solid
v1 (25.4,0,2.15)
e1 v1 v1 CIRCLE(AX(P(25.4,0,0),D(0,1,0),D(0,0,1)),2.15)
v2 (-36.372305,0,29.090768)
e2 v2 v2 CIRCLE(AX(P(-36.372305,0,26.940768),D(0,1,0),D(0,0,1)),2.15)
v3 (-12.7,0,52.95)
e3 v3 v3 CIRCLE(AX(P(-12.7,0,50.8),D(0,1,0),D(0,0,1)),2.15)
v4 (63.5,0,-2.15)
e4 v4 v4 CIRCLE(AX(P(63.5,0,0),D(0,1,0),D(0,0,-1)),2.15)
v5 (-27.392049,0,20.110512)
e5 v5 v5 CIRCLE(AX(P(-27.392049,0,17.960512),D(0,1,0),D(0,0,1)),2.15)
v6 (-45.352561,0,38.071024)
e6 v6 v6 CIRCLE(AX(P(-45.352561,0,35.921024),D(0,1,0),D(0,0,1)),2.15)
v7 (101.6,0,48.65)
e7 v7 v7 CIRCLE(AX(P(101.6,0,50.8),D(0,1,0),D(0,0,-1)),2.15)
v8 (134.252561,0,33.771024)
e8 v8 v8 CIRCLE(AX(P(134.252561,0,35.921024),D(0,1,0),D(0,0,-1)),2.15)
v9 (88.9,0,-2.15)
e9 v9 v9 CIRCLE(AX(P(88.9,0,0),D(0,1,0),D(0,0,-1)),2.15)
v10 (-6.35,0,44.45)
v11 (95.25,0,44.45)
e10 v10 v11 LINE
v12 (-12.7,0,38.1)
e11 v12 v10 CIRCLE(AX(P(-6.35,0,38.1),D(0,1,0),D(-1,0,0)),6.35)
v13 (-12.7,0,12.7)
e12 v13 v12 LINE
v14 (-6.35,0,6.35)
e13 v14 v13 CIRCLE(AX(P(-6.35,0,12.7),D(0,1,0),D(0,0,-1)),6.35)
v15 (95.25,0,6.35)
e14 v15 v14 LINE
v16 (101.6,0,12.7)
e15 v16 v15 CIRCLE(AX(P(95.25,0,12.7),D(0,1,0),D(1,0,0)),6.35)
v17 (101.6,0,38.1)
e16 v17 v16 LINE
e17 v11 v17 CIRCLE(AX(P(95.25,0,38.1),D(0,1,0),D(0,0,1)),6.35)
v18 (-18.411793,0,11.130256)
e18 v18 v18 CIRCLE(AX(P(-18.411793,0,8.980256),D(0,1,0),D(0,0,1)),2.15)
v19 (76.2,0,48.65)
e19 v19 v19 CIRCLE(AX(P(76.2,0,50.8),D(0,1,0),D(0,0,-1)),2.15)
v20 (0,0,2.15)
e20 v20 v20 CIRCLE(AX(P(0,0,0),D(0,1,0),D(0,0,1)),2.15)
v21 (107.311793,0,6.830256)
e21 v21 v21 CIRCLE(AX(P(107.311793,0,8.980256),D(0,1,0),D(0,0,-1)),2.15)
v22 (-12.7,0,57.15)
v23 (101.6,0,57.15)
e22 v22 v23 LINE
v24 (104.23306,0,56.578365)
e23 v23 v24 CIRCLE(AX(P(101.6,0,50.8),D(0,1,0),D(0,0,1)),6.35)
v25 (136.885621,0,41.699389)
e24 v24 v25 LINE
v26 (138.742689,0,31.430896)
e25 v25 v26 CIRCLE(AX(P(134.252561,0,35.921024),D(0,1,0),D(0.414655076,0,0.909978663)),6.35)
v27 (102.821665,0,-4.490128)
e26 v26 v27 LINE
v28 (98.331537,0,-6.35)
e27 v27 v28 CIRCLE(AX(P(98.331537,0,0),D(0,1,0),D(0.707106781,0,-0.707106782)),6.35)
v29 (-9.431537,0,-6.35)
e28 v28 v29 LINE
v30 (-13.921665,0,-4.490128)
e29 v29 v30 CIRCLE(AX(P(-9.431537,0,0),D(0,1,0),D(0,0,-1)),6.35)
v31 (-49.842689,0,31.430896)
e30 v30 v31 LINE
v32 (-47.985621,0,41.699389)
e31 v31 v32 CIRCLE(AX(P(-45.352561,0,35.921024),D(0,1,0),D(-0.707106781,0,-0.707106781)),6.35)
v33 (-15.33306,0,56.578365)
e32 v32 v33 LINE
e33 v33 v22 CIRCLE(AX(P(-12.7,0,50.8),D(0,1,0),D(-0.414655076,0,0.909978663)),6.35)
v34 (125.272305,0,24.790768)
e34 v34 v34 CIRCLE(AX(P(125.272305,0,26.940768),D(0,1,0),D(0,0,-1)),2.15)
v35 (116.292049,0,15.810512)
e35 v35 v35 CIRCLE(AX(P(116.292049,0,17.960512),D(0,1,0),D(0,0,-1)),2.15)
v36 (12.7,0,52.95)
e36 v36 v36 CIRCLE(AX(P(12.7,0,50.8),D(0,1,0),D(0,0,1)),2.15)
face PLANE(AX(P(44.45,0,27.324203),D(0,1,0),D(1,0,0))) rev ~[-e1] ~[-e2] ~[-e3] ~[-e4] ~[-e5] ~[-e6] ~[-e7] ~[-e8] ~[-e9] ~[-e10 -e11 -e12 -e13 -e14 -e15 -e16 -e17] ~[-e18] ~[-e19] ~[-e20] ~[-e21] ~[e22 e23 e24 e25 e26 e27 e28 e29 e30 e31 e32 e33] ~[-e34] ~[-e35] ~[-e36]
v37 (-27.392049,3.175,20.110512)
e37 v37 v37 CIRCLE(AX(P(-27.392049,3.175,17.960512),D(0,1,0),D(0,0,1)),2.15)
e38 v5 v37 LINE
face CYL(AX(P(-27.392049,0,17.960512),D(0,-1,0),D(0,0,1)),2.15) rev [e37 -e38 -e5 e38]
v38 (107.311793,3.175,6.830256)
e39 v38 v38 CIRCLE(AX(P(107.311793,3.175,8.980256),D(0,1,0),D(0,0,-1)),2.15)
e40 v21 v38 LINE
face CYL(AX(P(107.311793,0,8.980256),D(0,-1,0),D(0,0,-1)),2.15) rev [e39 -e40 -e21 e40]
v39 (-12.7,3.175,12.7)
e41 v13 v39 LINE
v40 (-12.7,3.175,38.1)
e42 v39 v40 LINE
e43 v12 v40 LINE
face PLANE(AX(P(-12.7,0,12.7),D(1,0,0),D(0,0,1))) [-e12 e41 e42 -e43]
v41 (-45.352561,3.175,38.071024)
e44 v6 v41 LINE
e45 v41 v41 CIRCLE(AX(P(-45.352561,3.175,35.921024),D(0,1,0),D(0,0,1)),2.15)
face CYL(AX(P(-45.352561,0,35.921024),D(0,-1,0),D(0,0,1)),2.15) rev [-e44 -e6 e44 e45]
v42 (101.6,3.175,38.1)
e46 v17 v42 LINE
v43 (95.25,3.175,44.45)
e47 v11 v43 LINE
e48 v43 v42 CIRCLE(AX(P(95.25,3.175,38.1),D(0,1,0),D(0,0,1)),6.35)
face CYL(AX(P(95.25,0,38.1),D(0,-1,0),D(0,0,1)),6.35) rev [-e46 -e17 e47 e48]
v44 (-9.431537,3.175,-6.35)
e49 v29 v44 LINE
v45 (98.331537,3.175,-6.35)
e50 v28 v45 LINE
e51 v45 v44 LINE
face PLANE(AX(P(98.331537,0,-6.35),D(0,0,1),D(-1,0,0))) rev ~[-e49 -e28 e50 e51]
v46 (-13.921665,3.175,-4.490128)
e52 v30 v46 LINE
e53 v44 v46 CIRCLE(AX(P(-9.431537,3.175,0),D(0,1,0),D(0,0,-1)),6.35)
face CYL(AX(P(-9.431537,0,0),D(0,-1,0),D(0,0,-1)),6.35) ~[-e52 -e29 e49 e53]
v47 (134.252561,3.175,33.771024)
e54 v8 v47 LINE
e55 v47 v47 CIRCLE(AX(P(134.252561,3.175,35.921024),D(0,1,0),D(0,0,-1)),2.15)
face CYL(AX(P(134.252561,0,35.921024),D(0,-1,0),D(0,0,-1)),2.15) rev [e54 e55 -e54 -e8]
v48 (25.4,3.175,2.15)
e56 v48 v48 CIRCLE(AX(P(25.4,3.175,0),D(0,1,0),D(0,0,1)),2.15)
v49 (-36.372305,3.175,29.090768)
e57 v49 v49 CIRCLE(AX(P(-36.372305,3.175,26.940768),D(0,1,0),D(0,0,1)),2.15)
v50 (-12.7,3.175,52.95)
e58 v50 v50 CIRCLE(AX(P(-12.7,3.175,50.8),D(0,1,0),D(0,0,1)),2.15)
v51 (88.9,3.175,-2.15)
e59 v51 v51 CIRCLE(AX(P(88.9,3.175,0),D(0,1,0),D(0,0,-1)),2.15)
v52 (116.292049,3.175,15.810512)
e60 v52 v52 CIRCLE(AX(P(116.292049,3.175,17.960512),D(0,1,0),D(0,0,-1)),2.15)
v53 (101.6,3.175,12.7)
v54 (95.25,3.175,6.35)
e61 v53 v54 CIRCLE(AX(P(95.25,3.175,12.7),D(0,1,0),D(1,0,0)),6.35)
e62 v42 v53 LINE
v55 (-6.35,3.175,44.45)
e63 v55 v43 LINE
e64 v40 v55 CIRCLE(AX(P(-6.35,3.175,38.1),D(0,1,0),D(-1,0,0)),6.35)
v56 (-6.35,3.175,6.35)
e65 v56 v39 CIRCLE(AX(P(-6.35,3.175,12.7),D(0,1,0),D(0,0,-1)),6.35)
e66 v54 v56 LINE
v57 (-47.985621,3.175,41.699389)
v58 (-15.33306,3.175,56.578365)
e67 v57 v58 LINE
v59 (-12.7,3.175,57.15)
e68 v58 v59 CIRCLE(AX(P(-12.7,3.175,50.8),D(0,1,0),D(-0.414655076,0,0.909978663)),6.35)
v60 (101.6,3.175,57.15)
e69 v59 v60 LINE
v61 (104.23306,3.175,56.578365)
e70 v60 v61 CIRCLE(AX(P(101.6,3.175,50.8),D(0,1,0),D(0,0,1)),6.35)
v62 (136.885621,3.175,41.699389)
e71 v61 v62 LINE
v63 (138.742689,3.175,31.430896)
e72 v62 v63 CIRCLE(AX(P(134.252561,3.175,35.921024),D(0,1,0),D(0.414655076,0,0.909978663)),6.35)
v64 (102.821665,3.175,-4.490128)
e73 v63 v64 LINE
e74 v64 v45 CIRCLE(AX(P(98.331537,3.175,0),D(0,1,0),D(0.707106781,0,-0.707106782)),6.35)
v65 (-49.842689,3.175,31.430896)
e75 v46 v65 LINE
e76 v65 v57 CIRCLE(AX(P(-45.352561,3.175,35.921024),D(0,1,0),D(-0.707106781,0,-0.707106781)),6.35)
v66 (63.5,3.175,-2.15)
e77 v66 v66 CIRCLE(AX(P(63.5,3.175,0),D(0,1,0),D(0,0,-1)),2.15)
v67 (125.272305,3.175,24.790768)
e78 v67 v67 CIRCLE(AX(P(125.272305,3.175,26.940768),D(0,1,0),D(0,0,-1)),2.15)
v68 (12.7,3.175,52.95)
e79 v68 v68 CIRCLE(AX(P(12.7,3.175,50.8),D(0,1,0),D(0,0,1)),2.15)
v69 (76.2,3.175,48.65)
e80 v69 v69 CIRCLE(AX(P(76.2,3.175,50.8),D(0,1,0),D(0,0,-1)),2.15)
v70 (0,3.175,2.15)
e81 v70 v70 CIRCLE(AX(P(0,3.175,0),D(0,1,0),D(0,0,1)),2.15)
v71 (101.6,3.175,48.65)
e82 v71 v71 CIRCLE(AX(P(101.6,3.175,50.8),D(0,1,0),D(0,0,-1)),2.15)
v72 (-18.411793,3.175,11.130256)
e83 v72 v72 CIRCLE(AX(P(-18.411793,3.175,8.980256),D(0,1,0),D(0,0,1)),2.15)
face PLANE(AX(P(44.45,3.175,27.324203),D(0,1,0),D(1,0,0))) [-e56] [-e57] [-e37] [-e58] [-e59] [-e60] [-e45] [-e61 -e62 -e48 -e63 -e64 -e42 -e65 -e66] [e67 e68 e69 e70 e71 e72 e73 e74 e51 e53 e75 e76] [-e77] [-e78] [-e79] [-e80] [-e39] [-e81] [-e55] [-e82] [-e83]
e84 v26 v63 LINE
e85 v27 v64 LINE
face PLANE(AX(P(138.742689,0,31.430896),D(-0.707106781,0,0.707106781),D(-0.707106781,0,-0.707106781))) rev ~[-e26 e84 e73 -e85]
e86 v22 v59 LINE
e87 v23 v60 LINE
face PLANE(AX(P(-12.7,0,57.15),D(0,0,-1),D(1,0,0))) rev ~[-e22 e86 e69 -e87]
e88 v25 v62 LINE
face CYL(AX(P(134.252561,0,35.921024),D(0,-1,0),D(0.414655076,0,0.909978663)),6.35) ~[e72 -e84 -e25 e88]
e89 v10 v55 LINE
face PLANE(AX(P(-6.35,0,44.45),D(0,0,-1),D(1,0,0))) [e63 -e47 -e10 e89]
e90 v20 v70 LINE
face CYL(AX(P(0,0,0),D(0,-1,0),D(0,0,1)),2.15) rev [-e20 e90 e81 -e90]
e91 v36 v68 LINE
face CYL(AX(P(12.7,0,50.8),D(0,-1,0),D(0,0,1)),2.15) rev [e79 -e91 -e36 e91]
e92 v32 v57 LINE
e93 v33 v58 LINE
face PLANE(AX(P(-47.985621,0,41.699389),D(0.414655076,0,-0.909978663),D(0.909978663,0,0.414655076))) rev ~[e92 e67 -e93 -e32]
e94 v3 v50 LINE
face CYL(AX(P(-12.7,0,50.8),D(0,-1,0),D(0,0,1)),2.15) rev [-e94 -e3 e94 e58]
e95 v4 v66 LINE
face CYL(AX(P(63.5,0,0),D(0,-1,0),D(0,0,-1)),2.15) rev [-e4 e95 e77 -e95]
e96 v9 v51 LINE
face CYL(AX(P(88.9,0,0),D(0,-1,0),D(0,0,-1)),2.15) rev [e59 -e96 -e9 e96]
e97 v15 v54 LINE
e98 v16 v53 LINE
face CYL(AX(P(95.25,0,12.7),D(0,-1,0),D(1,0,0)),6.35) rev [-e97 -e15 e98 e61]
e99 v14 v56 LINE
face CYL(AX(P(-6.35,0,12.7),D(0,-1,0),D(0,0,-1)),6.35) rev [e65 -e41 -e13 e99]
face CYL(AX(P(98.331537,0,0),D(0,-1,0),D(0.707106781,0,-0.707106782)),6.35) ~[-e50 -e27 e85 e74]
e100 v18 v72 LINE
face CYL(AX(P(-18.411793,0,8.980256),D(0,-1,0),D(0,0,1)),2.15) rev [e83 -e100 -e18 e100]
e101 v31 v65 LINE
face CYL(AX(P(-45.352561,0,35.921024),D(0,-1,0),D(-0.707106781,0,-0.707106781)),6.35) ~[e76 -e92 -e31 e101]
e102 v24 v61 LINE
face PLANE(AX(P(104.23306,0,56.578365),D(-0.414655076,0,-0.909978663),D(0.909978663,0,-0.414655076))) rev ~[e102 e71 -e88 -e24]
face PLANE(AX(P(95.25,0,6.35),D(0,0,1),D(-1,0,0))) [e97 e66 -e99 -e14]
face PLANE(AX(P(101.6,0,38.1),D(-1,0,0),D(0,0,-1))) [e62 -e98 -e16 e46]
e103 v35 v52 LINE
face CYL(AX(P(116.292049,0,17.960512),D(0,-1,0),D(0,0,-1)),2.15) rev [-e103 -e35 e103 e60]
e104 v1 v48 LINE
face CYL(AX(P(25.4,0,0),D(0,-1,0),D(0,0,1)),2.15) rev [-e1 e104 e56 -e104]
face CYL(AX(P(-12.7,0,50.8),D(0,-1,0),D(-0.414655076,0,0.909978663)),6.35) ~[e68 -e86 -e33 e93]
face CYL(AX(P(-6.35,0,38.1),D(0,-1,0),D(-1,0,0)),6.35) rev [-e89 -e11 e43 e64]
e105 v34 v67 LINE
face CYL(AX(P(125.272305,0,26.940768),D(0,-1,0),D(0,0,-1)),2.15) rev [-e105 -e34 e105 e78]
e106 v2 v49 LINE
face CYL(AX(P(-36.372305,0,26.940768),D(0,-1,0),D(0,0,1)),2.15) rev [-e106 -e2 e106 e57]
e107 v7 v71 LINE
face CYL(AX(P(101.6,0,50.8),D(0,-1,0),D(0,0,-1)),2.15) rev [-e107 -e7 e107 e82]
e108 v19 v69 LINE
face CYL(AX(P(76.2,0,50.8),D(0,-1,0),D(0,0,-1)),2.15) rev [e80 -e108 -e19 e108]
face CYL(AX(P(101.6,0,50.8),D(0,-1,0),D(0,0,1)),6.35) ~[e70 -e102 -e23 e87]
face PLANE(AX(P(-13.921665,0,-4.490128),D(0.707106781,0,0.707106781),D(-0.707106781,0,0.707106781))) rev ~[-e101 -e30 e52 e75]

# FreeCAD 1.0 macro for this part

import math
import FreeCAD as App
import Part
import Sketcher
from FreeCAD import Vector
Q = App.Units.Quantity

doc = App.newDocument("Part")
params = doc.addObject("Spreadsheet::Sheet", "Params")
for row, (alias, value) in enumerate([
    ("sketch1_width", "4 in"),
    ("sketch1_height", "1 in"),
    ("sketch1_radius", "0.25 in"),
    ("sketch1_length", "2 in"),
    ("pad1_length", "0.125 in"),
], start=1):
    params.set(f"A{row}", alias)
    params.set(f"B{row}", "=" + value)
    params.setAlias(f"B{row}", alias)

body = doc.addObject("PartDesign::Body", "Body")

# Sketch on XZ plane
sketch1 = doc.addObject("Sketcher::SketchObject", "Sketch")
body.addObject(sketch1)
sketch1.AttachmentSupport = (doc.XZ_Plane, [""])
sketch1.MapMode = "FlatFace"
sketch1.addGeometry([
    Part.LineSegment(Vector(98.331537, -6.35, 0), Vector(-9.431537, -6.35, 0)),  # 0
    Part.ArcOfCircle(Part.Circle(Vector(-9.431537, 0, 0), Vector(0, 0, 1), 6.35), math.radians(-135), math.radians(-90)),  # 1
    Part.LineSegment(Vector(-13.921665, -4.490128, 0), Vector(-49.842689, 31.430896, 0)),  # 2
    Part.ArcOfCircle(Part.Circle(Vector(-45.352561, 35.921024, 0), Vector(0, 0, 1), 6.35), math.radians(114.497597), math.radians(225)),  # 3
    Part.LineSegment(Vector(-47.985621, 41.699389, 0), Vector(-15.33306, 56.578365, 0)),  # 4
    Part.ArcOfCircle(Part.Circle(Vector(-12.7, 50.8, 0), Vector(0, 0, 1), 6.35), math.radians(90), math.radians(114.497597)),  # 5
    Part.LineSegment(Vector(-12.7, 57.15, 0), Vector(101.6, 57.15, 0)),  # 6
    Part.ArcOfCircle(Part.Circle(Vector(101.6, 50.8, 0), Vector(0, 0, 1), 6.35), math.radians(65.502403), math.radians(90)),  # 7
    Part.LineSegment(Vector(104.23306, 56.578365, 0), Vector(136.885621, 41.699389, 0)),  # 8
    Part.ArcOfCircle(Part.Circle(Vector(134.252561, 35.921024, 0), Vector(0, 0, 1), 6.35), math.radians(-45), math.radians(65.502403)),  # 9
    Part.LineSegment(Vector(138.742689, 31.430896, 0), Vector(102.821665, -4.490128, 0)),  # 10
    Part.ArcOfCircle(Part.Circle(Vector(98.331537, 0, 0), Vector(0, 0, 1), 6.35), math.radians(-90), math.radians(-45)),  # 11
    Part.Circle(Vector(-12.7, 50.8, 0), Vector(0, 0, 1), 2.15),  # 12
    Part.Circle(Vector(12.7, 50.8, 0), Vector(0, 0, 1), 2.15),  # 13
    Part.Circle(Vector(-45.352561, 35.921024, 0), Vector(0, 0, 1), 2.15),  # 14
    Part.Circle(Vector(-36.372305, 26.940768, 0), Vector(0, 0, 1), 2.15),  # 15
    Part.Circle(Vector(76.2, 50.8, 0), Vector(0, 0, 1), 2.15),  # 16
    Part.Circle(Vector(101.6, 50.8, 0), Vector(0, 0, 1), 2.15),  # 17
    Part.Circle(Vector(134.252561, 35.921024, 0), Vector(0, 0, 1), 2.15),  # 18
    Part.Circle(Vector(125.272305, 26.940768, 0), Vector(0, 0, 1), 2.15),  # 19
    Part.Circle(Vector(-27.392049, 17.960512, 0), Vector(0, 0, 1), 2.15),  # 20
    Part.LineSegment(Vector(-6.35, 6.35, 0), Vector(95.25, 6.35, 0)),  # 21
    Part.ArcOfCircle(Part.Circle(Vector(95.25, 12.7, 0), Vector(0, 0, 1), 6.35), math.radians(-90), math.radians(0)),  # 22
    Part.LineSegment(Vector(101.6, 12.7, 0), Vector(101.6, 38.1, 0)),  # 23
    Part.ArcOfCircle(Part.Circle(Vector(95.25, 38.1, 0), Vector(0, 0, 1), 6.35), math.radians(0), math.radians(90)),  # 24
    Part.LineSegment(Vector(95.25, 44.45, 0), Vector(-6.35, 44.45, 0)),  # 25
    Part.ArcOfCircle(Part.Circle(Vector(-6.35, 38.1, 0), Vector(0, 0, 1), 6.35), math.radians(90), math.radians(180)),  # 26
    Part.LineSegment(Vector(-12.7, 38.1, 0), Vector(-12.7, 12.7, 0)),  # 27
    Part.ArcOfCircle(Part.Circle(Vector(-6.35, 12.7, 0), Vector(0, 0, 1), 6.35), math.radians(180), math.radians(270)),  # 28
    Part.Circle(Vector(-18.411793, 8.980256, 0), Vector(0, 0, 1), 2.15),  # 29
    Part.Circle(Vector(0, 0, 0), Vector(0, 0, 1), 2.15),  # 30
    Part.Circle(Vector(25.4, 0, 0), Vector(0, 0, 1), 2.15),  # 31
    Part.Circle(Vector(116.292049, 17.960512, 0), Vector(0, 0, 1), 2.15),  # 32
    Part.Circle(Vector(63.5, 0, 0), Vector(0, 0, 1), 2.15),  # 33
    Part.Circle(Vector(88.9, 0, 0), Vector(0, 0, 1), 2.15),  # 34
    Part.Circle(Vector(107.311793, 8.980256, 0), Vector(0, 0, 1), 2.15),  # 35
], False)
sketch1.addConstraint([
    Sketcher.Constraint("Tangent", 0, 2, 1, 2),
    Sketcher.Constraint("Tangent", 1, 1, 2, 1),
    Sketcher.Constraint("Tangent", 2, 2, 3, 2),
    Sketcher.Constraint("Tangent", 3, 1, 4, 1),
    Sketcher.Constraint("Tangent", 4, 2, 5, 2),
    Sketcher.Constraint("Tangent", 5, 1, 6, 1),
    Sketcher.Constraint("Tangent", 6, 2, 7, 2),
    Sketcher.Constraint("Tangent", 7, 1, 8, 1),
    Sketcher.Constraint("Tangent", 8, 2, 9, 2),
    Sketcher.Constraint("Tangent", 9, 1, 10, 1),
    Sketcher.Constraint("Tangent", 10, 2, 11, 2),
    Sketcher.Constraint("Tangent", 11, 1, 0, 1),
    Sketcher.Constraint("Tangent", 21, 2, 22, 1),
    Sketcher.Constraint("Tangent", 22, 2, 23, 1),
    Sketcher.Constraint("Tangent", 23, 2, 24, 1),
    Sketcher.Constraint("Tangent", 24, 2, 25, 1),
    Sketcher.Constraint("Tangent", 25, 2, 26, 1),
    Sketcher.Constraint("Tangent", 26, 2, 27, 1),
    Sketcher.Constraint("Tangent", 27, 2, 28, 1),
    Sketcher.Constraint("Tangent", 28, 2, 21, 1),
    Sketcher.Constraint("Horizontal", 0),
    Sketcher.Constraint("Horizontal", 6),
    Sketcher.Constraint("Horizontal", 21),
    Sketcher.Constraint("Vertical", 23),
    Sketcher.Constraint("Horizontal", 25),
    Sketcher.Constraint("Vertical", 27),
    Sketcher.Constraint("Coincident", 30, 3, -1, 1),
    Sketcher.Constraint("Coincident", 12, 3, 5, 3),
    Sketcher.Constraint("Coincident", 14, 3, 3, 3),
    Sketcher.Constraint("Coincident", 17, 3, 7, 3),
    Sketcher.Constraint("Coincident", 18, 3, 9, 3),
    Sketcher.Constraint("Equal", 1, 3),
    Sketcher.Constraint("Equal", 3, 5),
    Sketcher.Constraint("Equal", 5, 7),
    Sketcher.Constraint("Equal", 7, 9),
    Sketcher.Constraint("Equal", 9, 11),
    Sketcher.Constraint("Equal", 12, 13),
    Sketcher.Constraint("Equal", 13, 14),
    Sketcher.Constraint("Equal", 14, 15),
    Sketcher.Constraint("Equal", 15, 16),
    Sketcher.Constraint("Equal", 16, 17),
    Sketcher.Constraint("Equal", 17, 18),
    Sketcher.Constraint("Equal", 18, 19),
    Sketcher.Constraint("Equal", 19, 20),
    Sketcher.Constraint("Equal", 11, 22),
    Sketcher.Constraint("Equal", 22, 24),
    Sketcher.Constraint("Equal", 24, 26),
    Sketcher.Constraint("Equal", 26, 28),
    Sketcher.Constraint("Equal", 20, 29),
    Sketcher.Constraint("Equal", 29, 30),
    Sketcher.Constraint("Equal", 30, 31),
    Sketcher.Constraint("Equal", 31, 32),
    Sketcher.Constraint("Equal", 32, 33),
    Sketcher.Constraint("Equal", 33, 34),
    Sketcher.Constraint("Equal", 34, 35),
    Sketcher.Constraint("Symmetric", 5, 3, 13, 3, -2),
    Sketcher.Constraint("PointOnObject", 1, 3, -1),
    Sketcher.Constraint("PointOnObject", 31, 3, -1),
    Sketcher.Constraint("PointOnObject", 33, 3, -1),
    Sketcher.Constraint("PointOnObject", 34, 3, -1),
    Sketcher.Constraint("Perpendicular", 2, 10),
    Sketcher.Constraint("Horizontal", 3, 3, 9, 3),
    Sketcher.Constraint("Horizontal", 13, 3, 16, 3),
    Sketcher.Constraint("Horizontal", 15, 3, 19, 3),
    Sketcher.Constraint("Horizontal", 20, 3, 32, 3),
    Sketcher.Constraint("Horizontal", 29, 3, 35, 3),
    Sketcher.Constraint("Horizontal", 4, 2, 7, 1),
    Sketcher.Constraint("Horizontal", 2, 2, 9, 1),
    Sketcher.Constraint("Vertical", 6, 2, 22, 2),
    Sketcher.Constraint("Vertical", 5, 1, 26, 2),
    Sketcher.Constraint("DistanceX", 21, 1, 21, 2, Q("4 in")),
    Sketcher.Constraint("DistanceY", 23, 1, 23, 2, Q("1 in")),
    Sketcher.Constraint("Radius", 1, Q("0.25 in")),
    Sketcher.Constraint("Distance", 2, Q("2 in")),
    Sketcher.Constraint("DistanceY", -1, 1, 5, 3, Q("2 in")),
    Sketcher.Constraint("DistanceX", -1, 1, 7, 3, Q("4 in")),
    Sketcher.Constraint("DistanceX", -1, 1, 16, 3, Q("3 in")),
    Sketcher.Constraint("DistanceX", -1, 1, 31, 3, Q("1 in")),
    Sketcher.Constraint("DistanceX", 33, 3, 34, 3, Q("1 in")),
    Sketcher.Constraint("DistanceY", -1, 1, 22, 3, Q("0.5 in")),
    Sketcher.Constraint("DistanceX", -1, 1, 33, 3, Q("2.5 in")),
    Sketcher.Constraint("Diameter", 12, Q("4.3 mm")),
    Sketcher.Constraint("DistanceX", 0, 2, 0, 1, Q("107.763073 mm")),
    Sketcher.Constraint("DistanceY", -1, 1, 15, 3, Q("26.940768 mm")),
    Sketcher.Constraint("DistanceX", 20, 3, -1, 1, Q("27.392049 mm")),
    Sketcher.Constraint("DistanceX", -1, 1, 32, 3, Q("116.292049 mm")),
    Sketcher.Constraint("DistanceX", 15, 3, 1, 3, Q("26.940768 mm")),
    Sketcher.Constraint("DistanceX", 11, 3, 19, 3, Q("26.940768 mm")),
    Sketcher.Constraint("DistanceX", 29, 3, 1, 1, Q("4.490128 mm")),
    Sketcher.Constraint("DistanceY", 29, 3, 2, 2, Q("22.45064 mm")),
    Sketcher.Constraint("DistanceX", 10, 2, 35, 3, Q("4.490128 mm")),
    Sketcher.Constraint("DistanceY", 10, 2, 32, 3, Q("22.45064 mm")),
])
sketch1.setExpression("Constraints[70]", "Params.sketch1_width")
sketch1.setExpression("Constraints[71]", "Params.sketch1_height")
sketch1.setExpression("Constraints[72]", "Params.sketch1_radius")
sketch1.setExpression("Constraints[73]", "Params.sketch1_length")
pad1 = doc.addObject("PartDesign::Pad", "Pad")
body.addObject(pad1)
pad1.Profile = sketch1
pad1.setExpression("Length", "Params.pad1_length")
pad1.Reversed = True

doc.recompute()
